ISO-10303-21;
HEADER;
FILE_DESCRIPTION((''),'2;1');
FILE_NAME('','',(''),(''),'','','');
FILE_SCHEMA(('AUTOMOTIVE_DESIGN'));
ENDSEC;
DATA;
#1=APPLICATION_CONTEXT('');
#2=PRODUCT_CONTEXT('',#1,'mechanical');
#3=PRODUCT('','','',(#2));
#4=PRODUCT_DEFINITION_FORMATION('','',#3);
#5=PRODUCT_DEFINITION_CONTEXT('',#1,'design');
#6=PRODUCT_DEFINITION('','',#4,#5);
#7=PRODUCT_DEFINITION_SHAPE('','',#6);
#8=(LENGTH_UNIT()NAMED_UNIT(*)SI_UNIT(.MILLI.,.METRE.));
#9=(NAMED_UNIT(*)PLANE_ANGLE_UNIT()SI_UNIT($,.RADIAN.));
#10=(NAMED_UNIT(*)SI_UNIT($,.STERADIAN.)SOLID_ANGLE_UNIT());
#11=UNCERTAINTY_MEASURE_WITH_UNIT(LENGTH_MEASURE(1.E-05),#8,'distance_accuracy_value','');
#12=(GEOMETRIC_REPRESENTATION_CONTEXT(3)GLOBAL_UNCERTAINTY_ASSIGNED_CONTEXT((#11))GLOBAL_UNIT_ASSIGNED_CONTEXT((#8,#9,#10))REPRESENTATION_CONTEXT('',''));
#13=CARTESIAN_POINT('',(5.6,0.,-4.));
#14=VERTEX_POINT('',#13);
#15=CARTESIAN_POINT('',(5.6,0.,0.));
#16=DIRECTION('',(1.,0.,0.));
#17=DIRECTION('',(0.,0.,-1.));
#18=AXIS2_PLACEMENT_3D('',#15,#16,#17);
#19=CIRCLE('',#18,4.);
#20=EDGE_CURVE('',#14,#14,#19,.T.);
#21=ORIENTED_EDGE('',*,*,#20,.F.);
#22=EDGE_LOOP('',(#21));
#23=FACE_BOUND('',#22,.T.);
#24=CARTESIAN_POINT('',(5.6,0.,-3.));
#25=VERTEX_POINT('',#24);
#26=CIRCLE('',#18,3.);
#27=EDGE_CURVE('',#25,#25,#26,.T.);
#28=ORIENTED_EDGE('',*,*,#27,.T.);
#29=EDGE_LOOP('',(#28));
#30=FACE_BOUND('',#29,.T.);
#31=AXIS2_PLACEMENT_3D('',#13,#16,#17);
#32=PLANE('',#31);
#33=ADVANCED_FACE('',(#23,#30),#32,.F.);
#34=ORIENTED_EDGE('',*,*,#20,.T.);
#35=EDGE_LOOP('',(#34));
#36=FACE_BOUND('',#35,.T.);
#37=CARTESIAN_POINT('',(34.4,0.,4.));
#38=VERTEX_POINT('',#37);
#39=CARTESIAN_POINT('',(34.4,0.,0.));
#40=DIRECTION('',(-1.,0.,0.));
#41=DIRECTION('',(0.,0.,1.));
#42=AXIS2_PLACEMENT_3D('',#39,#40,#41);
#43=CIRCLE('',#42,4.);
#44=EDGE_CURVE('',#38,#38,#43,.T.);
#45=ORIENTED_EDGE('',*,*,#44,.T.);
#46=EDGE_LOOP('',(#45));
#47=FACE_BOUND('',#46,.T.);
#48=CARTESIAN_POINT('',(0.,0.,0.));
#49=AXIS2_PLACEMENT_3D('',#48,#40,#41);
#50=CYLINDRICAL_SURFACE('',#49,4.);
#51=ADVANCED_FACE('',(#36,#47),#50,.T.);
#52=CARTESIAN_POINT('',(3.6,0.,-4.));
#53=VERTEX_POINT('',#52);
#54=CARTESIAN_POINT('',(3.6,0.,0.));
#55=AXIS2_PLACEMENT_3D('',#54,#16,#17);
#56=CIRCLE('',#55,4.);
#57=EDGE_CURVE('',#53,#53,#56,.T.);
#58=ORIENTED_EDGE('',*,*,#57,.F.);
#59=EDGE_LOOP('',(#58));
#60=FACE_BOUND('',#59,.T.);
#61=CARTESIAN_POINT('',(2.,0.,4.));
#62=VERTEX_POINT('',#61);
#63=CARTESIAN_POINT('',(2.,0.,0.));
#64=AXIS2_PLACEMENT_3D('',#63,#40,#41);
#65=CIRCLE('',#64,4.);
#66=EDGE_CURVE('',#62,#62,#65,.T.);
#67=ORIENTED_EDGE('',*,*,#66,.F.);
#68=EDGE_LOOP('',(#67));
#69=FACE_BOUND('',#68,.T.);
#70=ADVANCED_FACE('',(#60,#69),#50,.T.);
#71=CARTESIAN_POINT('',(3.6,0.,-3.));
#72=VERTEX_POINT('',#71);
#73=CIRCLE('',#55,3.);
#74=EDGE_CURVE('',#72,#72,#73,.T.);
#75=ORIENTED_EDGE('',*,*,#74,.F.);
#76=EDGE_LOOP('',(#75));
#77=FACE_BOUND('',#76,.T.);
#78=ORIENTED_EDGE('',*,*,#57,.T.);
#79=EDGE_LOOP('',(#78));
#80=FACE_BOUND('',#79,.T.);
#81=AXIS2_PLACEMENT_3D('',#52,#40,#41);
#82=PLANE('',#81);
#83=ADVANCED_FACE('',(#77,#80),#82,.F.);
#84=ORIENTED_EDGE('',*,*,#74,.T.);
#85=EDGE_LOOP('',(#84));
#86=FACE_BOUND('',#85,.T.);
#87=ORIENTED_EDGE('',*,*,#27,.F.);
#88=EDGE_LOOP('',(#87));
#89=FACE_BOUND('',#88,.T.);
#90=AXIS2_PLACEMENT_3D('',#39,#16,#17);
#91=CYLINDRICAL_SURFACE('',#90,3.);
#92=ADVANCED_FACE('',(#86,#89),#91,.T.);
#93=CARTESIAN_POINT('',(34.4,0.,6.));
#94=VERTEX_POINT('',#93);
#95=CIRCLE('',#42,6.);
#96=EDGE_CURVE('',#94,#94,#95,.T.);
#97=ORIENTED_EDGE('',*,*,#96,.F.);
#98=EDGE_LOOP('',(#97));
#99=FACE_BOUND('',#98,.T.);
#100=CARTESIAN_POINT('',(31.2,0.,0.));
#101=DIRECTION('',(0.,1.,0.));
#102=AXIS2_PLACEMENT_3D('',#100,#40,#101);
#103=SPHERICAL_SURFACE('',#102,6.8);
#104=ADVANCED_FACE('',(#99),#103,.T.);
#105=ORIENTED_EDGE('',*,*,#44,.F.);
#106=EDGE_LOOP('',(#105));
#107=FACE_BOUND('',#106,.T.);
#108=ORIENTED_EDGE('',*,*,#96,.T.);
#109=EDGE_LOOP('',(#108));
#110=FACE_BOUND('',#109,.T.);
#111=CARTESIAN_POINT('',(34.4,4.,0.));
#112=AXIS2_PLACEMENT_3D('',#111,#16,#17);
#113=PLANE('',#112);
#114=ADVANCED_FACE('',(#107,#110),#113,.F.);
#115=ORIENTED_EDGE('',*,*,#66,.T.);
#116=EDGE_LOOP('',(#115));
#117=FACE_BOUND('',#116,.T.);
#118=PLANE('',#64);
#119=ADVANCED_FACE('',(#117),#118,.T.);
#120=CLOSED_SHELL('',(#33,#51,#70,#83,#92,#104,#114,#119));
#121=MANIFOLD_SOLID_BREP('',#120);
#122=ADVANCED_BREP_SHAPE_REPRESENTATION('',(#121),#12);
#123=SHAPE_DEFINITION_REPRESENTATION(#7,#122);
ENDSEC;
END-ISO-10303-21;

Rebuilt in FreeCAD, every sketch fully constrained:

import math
import FreeCAD as App
import Part
import Sketcher

V = App.Vector
Q = App.Units.Quantity


def add_polygon(sketch, points):
    """Adds a closed chain of lines whose ends are joined by coincident constraints."""
    first, n = sketch.GeometryCount, len(points)
    for a, b in zip(points, points[1:] + points[:1]):
        sketch.addGeometry(Part.LineSegment(App.Vector(*a, 0), App.Vector(*b, 0)), False)
    for i in range(n):
        sketch.addConstraint(Sketcher.Constraint("Coincident", first + i, 2, first + (i + 1) % n, 1))

doc = App.newDocument("Part")
params = doc.addObject("Spreadsheet::Sheet", "Params")
for row, (alias, value) in enumerate([
    ("sketch1_radius", "6.8 mm"),
    ("sketch1_width", "38 mm"),
    ("sketch1_height", "4 mm"),
    ("sketch1_height2", "2 mm"),
    ("revolution_angle", "360 deg"),
    ("sketch2_diameter", "2 mm"),
    ("sketch3_width", "2 mm"),
    ("sketch3_height", "1 mm"),
    ("groove_angle", "360 deg"),
    ("sketch4_diameter", "8 mm"),
    ("pocket2_length", "2 mm"),
    ("sketch5_diameter", "6 mm"),
    ("pad1_length", "32.4 mm"),
], start=1):
    params.set(f"A{row}", alias)
    params.set(f"B{row}", "=" + value)
    params.setAlias(f"B{row}", alias)

body = doc.addObject("PartDesign::Body", "Body")

# Sketch on XY plane
sketch1 = body.newObject("Sketcher::SketchObject", "Sketch")
sketch1.AttachmentSupport = (doc.getObject("XY_Plane"), [""])
sketch1.MapMode = "FlatFace"
sketch1.addGeometry([
    Part.LineSegment(V(34.4, 4, 0), V(0, 4, 0)),  # 0
    Part.LineSegment(V(0, 4, 0), V(0, 0, 0)),  # 1
    Part.LineSegment(V(0, 0, 0), V(38, 0, 0)),  # 2
    Part.ArcOfCircle(Part.Circle(V(31.2, 0, 0), V(0, 0, 1), 6.8), math.radians(0), math.radians(62)),  # 3
    Part.LineSegment(V(34.4, 6, 0), V(34.4, 4, 0)),  # 4
], False)
sketch1.addConstraint([
    Sketcher.Constraint("Coincident", 0, 2, 1, 1),
    Sketcher.Constraint("Coincident", 1, 2, 2, 1),
    Sketcher.Constraint("Coincident", 2, 2, 3, 1),
    Sketcher.Constraint("Coincident", 3, 2, 4, 1),
    Sketcher.Constraint("Coincident", 4, 2, 0, 1),
    Sketcher.Constraint("Horizontal", 0),
    Sketcher.Constraint("Vertical", 1),
    Sketcher.Constraint("Horizontal", 2),
    Sketcher.Constraint("Vertical", 4),
    Sketcher.Constraint("Coincident", 1, 2, -1, 1),
    Sketcher.Constraint("PointOnObject", 3, 3, -1),
    Sketcher.Constraint("Radius", 3, Q("6.8 mm")),
    Sketcher.Constraint("DistanceX", 2, 1, 2, 2, Q("38 mm")),
    Sketcher.Constraint("DistanceY", 1, 2, 1, 1, Q("4 mm")),
    Sketcher.Constraint("DistanceY", 4, 2, 4, 1, Q("2 mm")),
])
sketch1.setExpression("Constraints[11]", "Params.sketch1_radius")
sketch1.setExpression("Constraints[12]", "Params.sketch1_width")
sketch1.setExpression("Constraints[13]", "Params.sketch1_height")
sketch1.setExpression("Constraints[14]", "Params.sketch1_height2")
revolution = body.newObject("PartDesign::Revolution", "Revolution")
revolution.Profile = sketch1
revolution.ReferenceAxis = (sketch1, ["H_Axis"])
revolution.setExpression("Angle", "Params.revolution_angle")

# Sketch on XZ plane
sketch2 = body.newObject("Sketcher::SketchObject", "Sketch001")
sketch2.AttachmentSupport = (doc.getObject("XZ_Plane"), [""])
sketch2.MapMode = "FlatFace"
sketch2.addGeometry(Part.Circle(V(4.6, 0, 0), V(0, 0, 1), 1), False)
sketch2.addConstraint([
    Sketcher.Constraint("PointOnObject", 0, 3, -1),
    Sketcher.Constraint("Diameter", 0, Q("2 mm")),
    Sketcher.Constraint("DistanceX", -1, 1, 0, 3, Q("4.6 mm")),
])
sketch2.setExpression("Constraints[1]", "Params.sketch2_diameter")
pocket1 = body.newObject("PartDesign::Pocket", "Pocket")
pocket1.Profile = sketch2
pocket1.Type = "ThroughAll"
pocket1.Midplane = True

# Sketch on XZ plane
sketch3 = body.newObject("Sketcher::SketchObject", "Sketch002")
sketch3.AttachmentSupport = (doc.getObject("XZ_Plane"), [""])
sketch3.MapMode = "FlatFace"
add_polygon(sketch3, [(3.6, -4), (3.6, -3), (5.6, -3), (5.6, -4)])  # lines 0-3
sketch3.addConstraint([
    Sketcher.Constraint("Vertical", 0),
    Sketcher.Constraint("Horizontal", 1),
    Sketcher.Constraint("Vertical", 2),
    Sketcher.Constraint("Horizontal", 3),
    Sketcher.Constraint("DistanceX", 1, 1, 1, 2, Q("2 mm")),
    Sketcher.Constraint("DistanceY", 0, 1, 0, 2, Q("1 mm")),
    Sketcher.Constraint("DistanceY", 0, 2, -1, 1, Q("3 mm")),
    Sketcher.Constraint("DistanceX", -1, 1, 0, 2, Q("3.6 mm")),
])
sketch3.setExpression("Constraints[8]", "Params.sketch3_width")
sketch3.setExpression("Constraints[9]", "Params.sketch3_height")
groove = body.newObject("PartDesign::Groove", "Groove")
groove.Profile = sketch3
groove.ReferenceAxis = (sketch3, ["H_Axis"])
groove.setExpression("Angle", "Params.groove_angle")

# Sketch on YZ plane
sketch4 = body.newObject("Sketcher::SketchObject", "Sketch003")
sketch4.AttachmentSupport = (doc.getObject("YZ_Plane"), [""])
sketch4.MapMode = "FlatFace"
sketch4.addGeometry(Part.Circle(V(0, 0, 0), V(0, 0, 1), 4), False)
sketch4.addConstraint([
    Sketcher.Constraint("Coincident", 0, 3, -1, 1),
    Sketcher.Constraint("Diameter", 0, Q("8 mm")),
])
sketch4.setExpression("Constraints[1]", "Params.sketch4_diameter")
pocket2 = body.newObject("PartDesign::Pocket", "Pocket001")
pocket2.Profile = sketch4
pocket2.setExpression("Length", "Params.pocket2_length")
pocket2.Reversed = True

# Sketch on YZ plane
sketch5 = body.newObject("Sketcher::SketchObject", "Sketch004")
sketch5.AttachmentSupport = (doc.getObject("YZ_Plane"), [""])
sketch5.MapMode = "FlatFace"
sketch5.AttachmentOffset = App.Placement(V(0, 0, 2), App.Rotation())
sketch5.addGeometry(Part.Circle(V(0, 0, 0), V(0, 0, 1), 3), False)
sketch5.addConstraint([
    Sketcher.Constraint("Coincident", 0, 3, -1, 1),
    Sketcher.Constraint("Diameter", 0, Q("6 mm")),
])
sketch5.setExpression("Constraints[1]", "Params.sketch5_diameter")
pad1 = body.newObject("PartDesign::Pad", "Pad")
pad1.Profile = sketch5
pad1.setExpression("Length", "Params.pad1_length")

doc.recompute()
